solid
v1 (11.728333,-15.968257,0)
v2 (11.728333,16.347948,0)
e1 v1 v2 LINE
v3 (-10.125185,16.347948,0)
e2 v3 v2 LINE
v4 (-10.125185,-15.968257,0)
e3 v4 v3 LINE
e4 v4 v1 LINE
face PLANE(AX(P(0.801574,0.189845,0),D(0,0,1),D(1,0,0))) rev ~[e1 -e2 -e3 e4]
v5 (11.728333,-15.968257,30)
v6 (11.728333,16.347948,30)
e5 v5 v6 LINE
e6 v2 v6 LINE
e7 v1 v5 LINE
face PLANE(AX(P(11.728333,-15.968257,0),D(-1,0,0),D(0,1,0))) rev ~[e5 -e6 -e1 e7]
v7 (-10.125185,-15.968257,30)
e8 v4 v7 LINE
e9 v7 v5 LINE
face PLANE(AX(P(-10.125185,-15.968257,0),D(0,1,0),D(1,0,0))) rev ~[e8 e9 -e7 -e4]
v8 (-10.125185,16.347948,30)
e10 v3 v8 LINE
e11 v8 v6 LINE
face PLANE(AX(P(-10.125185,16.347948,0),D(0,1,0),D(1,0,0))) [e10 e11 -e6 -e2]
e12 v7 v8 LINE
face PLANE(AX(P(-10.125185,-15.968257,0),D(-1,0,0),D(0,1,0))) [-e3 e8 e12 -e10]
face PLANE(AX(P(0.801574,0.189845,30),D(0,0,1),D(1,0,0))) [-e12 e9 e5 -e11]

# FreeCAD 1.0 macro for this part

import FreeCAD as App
import Part
import Sketcher
Q = App.Units.Quantity


def add_polygon(sketch, points):
    """Adds a closed chain of lines whose ends are joined by coincident constraints."""
    first, n = sketch.GeometryCount, len(points)
    for a, b in zip(points, points[1:] + points[:1]):
        sketch.addGeometry(Part.LineSegment(App.Vector(*a, 0), App.Vector(*b, 0)), False)
    for i in range(n):
        sketch.addConstraint(Sketcher.Constraint("Coincident", first + i, 2, first + (i + 1) % n, 1))

doc = App.newDocument("Part")
body = doc.addObject("PartDesign::Body", "Body")

# Sketch on XY plane
sketch1 = body.newObject("Sketcher::SketchObject", "Sketch")
sketch1.AttachmentSupport = (doc.getObject("XY_Plane"), [""])
sketch1.MapMode = "FlatFace"
add_polygon(sketch1, [(-10.125185, 16.347948), (-10.125185, -15.968257), (11.728333, -15.968257), (11.728333, 16.347948)])  # lines 0-3
sketch1.addConstraint(Sketcher.Constraint("Vertical", 0))
sketch1.addConstraint(Sketcher.Constraint("Horizontal", 1))
sketch1.addConstraint(Sketcher.Constraint("Vertical", 2))
sketch1.addConstraint(Sketcher.Constraint("Horizontal", 3))
sketch1.addConstraint(Sketcher.Constraint("DistanceX", 1, 1, 1, 2, Q("21.853518 mm")))
sketch1.addConstraint(Sketcher.Constraint("DistanceY", 0, 2, 0, 1, Q("32.316205 mm")))
sketch1.addConstraint(Sketcher.Constraint("DistanceX", 0, 2, -1, 1, Q("10.125185 mm")))
sketch1.addConstraint(Sketcher.Constraint("DistanceY", 0, 2, -1, 1, Q("15.968257 mm")))
pad1 = body.newObject("PartDesign::Pad", "Pad")
pad1.Profile = sketch1
pad1.Length = 30

doc.recompute()
